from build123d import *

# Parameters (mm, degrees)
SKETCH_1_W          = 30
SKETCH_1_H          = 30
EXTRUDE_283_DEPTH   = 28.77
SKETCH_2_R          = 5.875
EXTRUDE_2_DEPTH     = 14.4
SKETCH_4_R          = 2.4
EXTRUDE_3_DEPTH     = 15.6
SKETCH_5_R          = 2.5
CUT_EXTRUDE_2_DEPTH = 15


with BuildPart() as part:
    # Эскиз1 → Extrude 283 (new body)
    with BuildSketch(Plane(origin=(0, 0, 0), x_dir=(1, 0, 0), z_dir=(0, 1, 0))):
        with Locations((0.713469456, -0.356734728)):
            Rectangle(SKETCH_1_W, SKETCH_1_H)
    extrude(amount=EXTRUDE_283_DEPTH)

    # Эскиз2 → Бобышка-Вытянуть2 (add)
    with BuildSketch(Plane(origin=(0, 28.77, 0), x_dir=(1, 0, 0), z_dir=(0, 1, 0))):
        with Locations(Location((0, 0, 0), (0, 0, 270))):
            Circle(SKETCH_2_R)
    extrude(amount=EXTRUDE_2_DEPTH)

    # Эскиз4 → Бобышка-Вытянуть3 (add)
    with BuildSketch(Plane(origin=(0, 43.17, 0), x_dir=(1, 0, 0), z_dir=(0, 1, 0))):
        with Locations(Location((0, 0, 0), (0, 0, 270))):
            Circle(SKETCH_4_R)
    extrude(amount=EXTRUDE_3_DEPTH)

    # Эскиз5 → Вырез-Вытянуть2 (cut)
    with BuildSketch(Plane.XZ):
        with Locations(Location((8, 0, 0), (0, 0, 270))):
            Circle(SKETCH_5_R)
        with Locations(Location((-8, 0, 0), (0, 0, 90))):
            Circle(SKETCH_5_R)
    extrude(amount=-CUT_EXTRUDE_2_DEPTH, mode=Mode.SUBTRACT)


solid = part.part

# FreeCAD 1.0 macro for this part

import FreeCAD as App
import Part
import Sketcher

V = App.Vector
Q = App.Units.Quantity

doc = App.newDocument("Part")
body = doc.addObject("PartDesign::Body", "Body")

sketch1 = doc.addObject("Sketcher::SketchObject", "Sketch")
body.addObject(sketch1)
sketch1.AttachmentSupport = (doc.XZ_Plane, [""])
sketch1.MapMode = "FlatFace"
sketch1.addGeometry(Part.LineSegment(V(-14, -15, 0), V(-14, 15, 0)), False)
sketch1.addGeometry(Part.LineSegment(V(-14, 15, 0), V(16, 15, 0)), False)
sketch1.addGeometry(Part.LineSegment(V(16, 15, 0), V(16, -15, 0)), False)
sketch1.addGeometry(Part.LineSegment(V(16, -15, 0), V(-14, -15, 0)), False)
sketch1.addConstraint(Sketcher.Constraint("Coincident", 0, 2, 1, 1))
sketch1.addConstraint(Sketcher.Constraint("Coincident", 1, 2, 2, 1))
sketch1.addConstraint(Sketcher.Constraint("Coincident", 2, 2, 3, 1))
sketch1.addConstraint(Sketcher.Constraint("Coincident", 3, 2, 0, 1))
sketch1.addConstraint(Sketcher.Constraint("Vertical", 0))
sketch1.addConstraint(Sketcher.Constraint("Horizontal", 1))
sketch1.addConstraint(Sketcher.Constraint("Vertical", 2))
sketch1.addConstraint(Sketcher.Constraint("Horizontal", 3))
sketch1.addConstraint(Sketcher.Constraint("Equal", 3, 0))
sketch1.addConstraint(Sketcher.Constraint("DistanceX", 1, 1, 1, 2, Q("30 mm")))
sketch1.addConstraint(Sketcher.Constraint("DistanceX", 0, 2, -1, 1, Q("14.286531 mm")))
sketch1.addConstraint(Sketcher.Constraint("DistanceY", -1, 1, 0, 2, Q("15.356735 mm")))
pad1 = doc.addObject("PartDesign::Pad", "Pad")
body.addObject(pad1)
pad1.Profile = sketch1
pad1.Length = 28.77
pad1.Reversed = True

sketch2 = doc.addObject("Sketcher::SketchObject", "Sketch001")
body.addObject(sketch2)
sketch2.AttachmentSupport = (doc.XZ_Plane, [""])
sketch2.MapMode = "FlatFace"
sketch2.AttachmentOffset = App.Placement(V(0, 0, -28.77), App.Rotation())
sketch2.addGeometry(Part.Circle(V(0, 0, 0), V(0, 0, 1), 6), False)
sketch2.addConstraint(Sketcher.Constraint("Coincident", 0, 3, -1, 1))
sketch2.addConstraint(Sketcher.Constraint("Diameter", 0, Q("11.75 mm")))
pad2 = doc.addObject("PartDesign::Pad", "Pad001")
body.addObject(pad2)
pad2.Profile = sketch2
pad2.Length = 14.4
pad2.Reversed = True

sketch3 = doc.addObject("Sketcher::SketchObject", "Sketch002")
body.addObject(sketch3)
sketch3.AttachmentSupport = (doc.XZ_Plane, [""])
sketch3.MapMode = "FlatFace"
sketch3.AttachmentOffset = App.Placement(V(0, 0, -43.17), App.Rotation())
sketch3.addGeometry(Part.Circle(V(0, 0, 0), V(0, 0, 1), 2.4), False)
sketch3.addConstraint(Sketcher.Constraint("Coincident", 0, 3, -1, 1))
sketch3.addConstraint(Sketcher.Constraint("Diameter", 0, Q("4.8 mm")))
pad3 = doc.addObject("PartDesign::Pad", "Pad002")
body.addObject(pad3)
pad3.Profile = sketch3
pad3.Length = 15.6
pad3.Reversed = True

sketch4 = doc.addObject("Sketcher::SketchObject", "Sketch003")
body.addObject(sketch4)
sketch4.AttachmentSupport = (doc.XZ_Plane, [""])
sketch4.MapMode = "FlatFace"
sketch4.addGeometry(Part.Circle(V(8, 0, 0), V(0, 0, 1), 2.5), False)
sketch4.addGeometry(Part.Circle(V(-8, 0, 0), V(0, 0, 1), 2.5), False)
sketch4.addConstraint(Sketcher.Constraint("Equal", 0, 1))
sketch4.addConstraint(Sketcher.Constraint("Symmetric", 0, 3, 1, 3, -1, 1))
sketch4.addConstraint(Sketcher.Constraint("PointOnObject", 0, 3, -1))
sketch4.addConstraint(Sketcher.Constraint("Diameter", 0, Q("5 mm")))
sketch4.addConstraint(Sketcher.Constraint("DistanceX", -1, 1, 0, 3, Q("8 mm")))
pocket1 = doc.addObject("PartDesign::Pocket", "Pocket")
body.addObject(pocket1)
pocket1.Profile = sketch4
pocket1.Length = 15

doc.recompute()
